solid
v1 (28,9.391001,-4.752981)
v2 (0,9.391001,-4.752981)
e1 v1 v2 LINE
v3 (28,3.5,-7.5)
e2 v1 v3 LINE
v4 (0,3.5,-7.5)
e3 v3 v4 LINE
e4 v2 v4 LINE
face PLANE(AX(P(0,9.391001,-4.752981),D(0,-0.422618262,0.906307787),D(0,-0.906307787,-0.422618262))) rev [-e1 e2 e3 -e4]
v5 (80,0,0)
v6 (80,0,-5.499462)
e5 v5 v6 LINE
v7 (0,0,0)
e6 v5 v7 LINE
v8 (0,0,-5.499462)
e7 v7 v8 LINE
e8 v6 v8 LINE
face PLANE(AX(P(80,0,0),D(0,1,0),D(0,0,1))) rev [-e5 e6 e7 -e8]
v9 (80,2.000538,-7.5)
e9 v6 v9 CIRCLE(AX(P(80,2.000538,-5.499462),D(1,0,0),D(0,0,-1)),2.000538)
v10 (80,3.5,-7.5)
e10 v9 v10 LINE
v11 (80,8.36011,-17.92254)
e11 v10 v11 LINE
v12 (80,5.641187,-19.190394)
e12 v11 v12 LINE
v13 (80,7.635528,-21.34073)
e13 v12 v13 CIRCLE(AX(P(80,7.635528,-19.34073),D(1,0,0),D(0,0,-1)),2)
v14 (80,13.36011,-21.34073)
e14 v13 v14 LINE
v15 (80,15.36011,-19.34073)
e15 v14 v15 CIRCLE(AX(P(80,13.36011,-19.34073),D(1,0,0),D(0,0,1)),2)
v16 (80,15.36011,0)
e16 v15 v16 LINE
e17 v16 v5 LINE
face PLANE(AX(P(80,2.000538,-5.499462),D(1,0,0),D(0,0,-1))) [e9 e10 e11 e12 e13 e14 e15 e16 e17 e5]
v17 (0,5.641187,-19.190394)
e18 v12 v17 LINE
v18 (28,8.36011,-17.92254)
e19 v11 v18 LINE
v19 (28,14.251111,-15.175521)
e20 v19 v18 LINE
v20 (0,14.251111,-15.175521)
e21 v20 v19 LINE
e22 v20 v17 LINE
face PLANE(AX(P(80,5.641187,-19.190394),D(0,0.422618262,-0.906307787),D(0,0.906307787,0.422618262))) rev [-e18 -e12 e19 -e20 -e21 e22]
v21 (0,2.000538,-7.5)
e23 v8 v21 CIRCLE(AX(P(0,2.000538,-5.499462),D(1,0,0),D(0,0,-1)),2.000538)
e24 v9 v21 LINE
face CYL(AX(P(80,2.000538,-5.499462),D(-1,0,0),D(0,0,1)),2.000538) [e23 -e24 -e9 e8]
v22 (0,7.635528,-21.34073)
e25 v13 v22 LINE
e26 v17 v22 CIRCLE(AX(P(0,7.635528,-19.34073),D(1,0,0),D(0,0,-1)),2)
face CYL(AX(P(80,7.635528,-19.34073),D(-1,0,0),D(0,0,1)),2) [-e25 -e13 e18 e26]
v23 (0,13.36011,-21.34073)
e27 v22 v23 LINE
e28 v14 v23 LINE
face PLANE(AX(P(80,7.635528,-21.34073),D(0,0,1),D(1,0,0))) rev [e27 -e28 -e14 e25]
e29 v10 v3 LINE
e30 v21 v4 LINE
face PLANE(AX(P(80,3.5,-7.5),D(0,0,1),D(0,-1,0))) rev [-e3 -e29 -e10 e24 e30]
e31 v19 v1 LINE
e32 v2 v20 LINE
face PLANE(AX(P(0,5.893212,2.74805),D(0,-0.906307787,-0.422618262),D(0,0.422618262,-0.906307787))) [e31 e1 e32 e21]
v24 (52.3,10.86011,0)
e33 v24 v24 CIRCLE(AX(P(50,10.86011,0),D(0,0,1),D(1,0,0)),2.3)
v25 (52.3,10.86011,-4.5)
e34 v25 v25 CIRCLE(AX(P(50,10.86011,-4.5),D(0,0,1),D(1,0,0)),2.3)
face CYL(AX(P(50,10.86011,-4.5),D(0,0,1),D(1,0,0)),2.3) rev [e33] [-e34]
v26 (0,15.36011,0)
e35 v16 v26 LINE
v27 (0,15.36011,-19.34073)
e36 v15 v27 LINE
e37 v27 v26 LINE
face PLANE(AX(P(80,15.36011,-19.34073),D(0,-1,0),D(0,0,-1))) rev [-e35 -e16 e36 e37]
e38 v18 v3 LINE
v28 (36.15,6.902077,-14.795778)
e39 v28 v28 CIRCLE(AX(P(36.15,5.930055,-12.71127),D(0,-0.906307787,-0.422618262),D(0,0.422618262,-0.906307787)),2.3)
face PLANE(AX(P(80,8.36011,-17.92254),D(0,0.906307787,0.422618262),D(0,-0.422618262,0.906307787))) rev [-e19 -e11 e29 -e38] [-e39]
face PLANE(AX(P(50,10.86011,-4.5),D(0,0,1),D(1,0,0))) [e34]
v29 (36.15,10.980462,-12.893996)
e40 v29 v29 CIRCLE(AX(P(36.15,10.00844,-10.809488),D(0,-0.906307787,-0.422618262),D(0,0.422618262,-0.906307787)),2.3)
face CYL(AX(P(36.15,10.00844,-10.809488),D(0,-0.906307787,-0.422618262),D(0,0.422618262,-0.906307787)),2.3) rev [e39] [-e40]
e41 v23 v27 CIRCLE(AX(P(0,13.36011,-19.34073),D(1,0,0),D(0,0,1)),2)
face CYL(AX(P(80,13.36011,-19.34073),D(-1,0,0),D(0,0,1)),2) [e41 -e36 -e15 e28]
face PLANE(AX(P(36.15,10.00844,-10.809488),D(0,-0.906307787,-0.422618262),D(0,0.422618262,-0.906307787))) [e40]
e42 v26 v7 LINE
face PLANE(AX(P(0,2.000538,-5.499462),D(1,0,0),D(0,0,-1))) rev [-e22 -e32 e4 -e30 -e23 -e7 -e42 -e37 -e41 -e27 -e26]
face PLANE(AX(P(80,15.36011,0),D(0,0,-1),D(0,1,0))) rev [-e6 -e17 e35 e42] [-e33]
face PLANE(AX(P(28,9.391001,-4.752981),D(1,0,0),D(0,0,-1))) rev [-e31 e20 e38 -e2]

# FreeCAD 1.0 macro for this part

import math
import FreeCAD as App
import Part
import Sketcher
Q = App.Units.Quantity

doc = App.newDocument("Part")
body = doc.addObject("PartDesign::Body", "Body")

sketch1 = body.newObject("Sketcher::SketchObject", "Sketch")
sketch1.AttachmentSupport = (doc.getObject("YZ_Plane"), [""])
sketch1.MapMode = "FlatFace"
sketch1.addGeometry([
    Part.LineSegment(App.Vector(0, 0, 0), App.Vector(0, -5.499462, 0)),
    Part.ArcOfCircle(Part.Circle(App.Vector(2.000538, -5.499462, 0), App.Vector(0, 0, 1), 2.000538), math.radians(180), math.radians(270)),
    Part.LineSegment(App.Vector(2.000538, -7.5, 0), App.Vector(3.5, -7.5, 0)),
    Part.LineSegment(App.Vector(3.5, -7.5, 0), App.Vector(8.36011, -17.92254, 0)),
    Part.LineSegment(App.Vector(8.36011, -17.92254, 0), App.Vector(5.641187, -19.190394, 0)),
    Part.ArcOfCircle(Part.Circle(App.Vector(7.635528, -19.34073, 0), App.Vector(0, 0, 1), 2), math.radians(175.689148), math.radians(270)),
    Part.LineSegment(App.Vector(7.635528, -21.34073, 0), App.Vector(13.36011, -21.34073, 0)),
    Part.ArcOfCircle(Part.Circle(App.Vector(13.36011, -19.34073, 0), App.Vector(0, 0, 1), 2), math.radians(-90), math.radians(0)),
    Part.LineSegment(App.Vector(15.36011, -19.34073, 0), App.Vector(15.36011, 0, 0)),
    Part.LineSegment(App.Vector(15.36011, 0, 0), App.Vector(0, 0, 0)),
], False)
sketch1.addConstraint([
    Sketcher.Constraint("Tangent", 0, 2, 1, 1),
    Sketcher.Constraint("Tangent", 1, 2, 2, 1),
    Sketcher.Constraint("Coincident", 2, 2, 3, 1),
    Sketcher.Constraint("Coincident", 3, 2, 4, 1),
    Sketcher.Constraint("Coincident", 4, 2, 5, 1),
    Sketcher.Constraint("Tangent", 5, 2, 6, 1),
    Sketcher.Constraint("Tangent", 6, 2, 7, 1),
    Sketcher.Constraint("Tangent", 7, 2, 8, 1),
    Sketcher.Constraint("Coincident", 8, 2, 9, 1),
    Sketcher.Constraint("Coincident", 9, 2, 0, 1),
    Sketcher.Constraint("Vertical", 0),
    Sketcher.Constraint("Horizontal", 2),
    Sketcher.Constraint("Horizontal", 6),
    Sketcher.Constraint("Vertical", 8),
    Sketcher.Constraint("Horizontal", 9),
    Sketcher.Constraint("Coincident", 9, 2, -1, 1),
    Sketcher.Constraint("Equal", 5, 7),
    Sketcher.Constraint("Perpendicular", 3, 4),
    Sketcher.Constraint("Radius", 5, 2.0),
    Sketcher.Constraint("Angle", 3, Q("-65 deg")),
    Sketcher.Constraint("Distance", 4, 3.0),
    Sketcher.Constraint("DistanceX", 3, 2, 7, 3, 5.0),
    Sketcher.Constraint("Distance", 3, 11.5),
    Sketcher.Constraint("DistanceY", 1, 2, -1, 1, 7.5),
    Sketcher.Constraint("DistanceX", -1, 1, 2, 2, 3.5),
    Sketcher.Constraint("Radius", 1, 2.000538),
    Sketcher.Constraint("DistanceX", 6, 1, 6, 2, 5.724582),
])
pad1 = body.newObject("PartDesign::Pad", "Pad")
pad1.Profile = sketch1
pad1.Length = 80

sketch2 = body.newObject("Sketcher::SketchObject", "Sketch001")
sketch2.Placement = App.Placement(App.Vector(0, 0.002212, 0.001031), App.Rotation(App.Vector(1, 0, 0), App.Vector(0, -0.422618262, 0.906307787), App.Vector(0, -0.906307787, -0.422618262), "ZXY"))
sketch2.addGeometry(Part.Circle(App.Vector(36.15, -14.026472, 0), App.Vector(0, 0, 1), 2.3), False)
sketch2.addConstraint([
    Sketcher.Constraint("Diameter", 0, 4.6),
    Sketcher.Constraint("DistanceX", -1, 1, 0, 3, 36.15),
    Sketcher.Constraint("DistanceY", 0, 3, -1, 1, 14.026472),
])
pocket1 = body.newObject("PartDesign::Pocket", "Pocket")
pocket1.Profile = sketch2
pocket1.Length = 4.5

sketch3 = body.newObject("Sketcher::SketchObject", "Sketch002")
sketch3.Placement = App.Placement(App.Vector(0, 0.002212, 0.001031), App.Rotation(App.Vector(1, 0, 0), App.Vector(0, -0.422618262, 0.906307787), App.Vector(0, -0.906307787, -0.422618262), "ZXY"))
sketch3.addGeometry([
    Part.LineSegment(App.Vector(0, -8.276472, 0), App.Vector(0, -19.776472, 0)),
    Part.LineSegment(App.Vector(0, -19.776472, 0), App.Vector(28, -19.776472, 0)),
    Part.LineSegment(App.Vector(28, -19.776472, 0), App.Vector(28, -8.276472, 0)),
    Part.LineSegment(App.Vector(28, -8.276472, 0), App.Vector(0, -8.276472, 0)),
], False)
sketch3.addConstraint([
    Sketcher.Constraint("Coincident", 0, 2, 1, 1),
    Sketcher.Constraint("Coincident", 1, 2, 2, 1),
    Sketcher.Constraint("Coincident", 2, 2, 3, 1),
    Sketcher.Constraint("Coincident", 3, 2, 0, 1),
    Sketcher.Constraint("Vertical", 0),
    Sketcher.Constraint("Horizontal", 1),
    Sketcher.Constraint("Vertical", 2),
    Sketcher.Constraint("Horizontal", 3),
    Sketcher.Constraint("PointOnObject", 0, 2, -2),
    Sketcher.Constraint("DistanceX", 1, 1, 1, 2, 28.0),
    Sketcher.Constraint("DistanceY", 0, 2, 0, 1, 11.5),
    Sketcher.Constraint("DistanceY", 0, 2, -1, 1, 19.776472),
])
pocket2 = body.newObject("PartDesign::Pocket", "Pocket001")
pocket2.Profile = sketch3
pocket2.Length = 6.5

sketch4 = body.newObject("Sketcher::SketchObject", "Sketch003")
sketch4.AttachmentSupport = (doc.getObject("XY_Plane"), [""])
sketch4.MapMode = "FlatFace"
sketch4.addGeometry(Part.Circle(App.Vector(50, 10.86011, 0), App.Vector(0, 0, 1), 2.3), False)
sketch4.addConstraint([
    Sketcher.Constraint("Diameter", 0, 4.6),
    Sketcher.Constraint("DistanceX", -1, 1, 0, 3, 50.0),
    Sketcher.Constraint("DistanceY", -1, 1, 0, 3, 10.86011),
])
pocket3 = body.newObject("PartDesign::Pocket", "Pocket002")
pocket3.Profile = sketch4
pocket3.Length = 4.5

doc.recompute()
